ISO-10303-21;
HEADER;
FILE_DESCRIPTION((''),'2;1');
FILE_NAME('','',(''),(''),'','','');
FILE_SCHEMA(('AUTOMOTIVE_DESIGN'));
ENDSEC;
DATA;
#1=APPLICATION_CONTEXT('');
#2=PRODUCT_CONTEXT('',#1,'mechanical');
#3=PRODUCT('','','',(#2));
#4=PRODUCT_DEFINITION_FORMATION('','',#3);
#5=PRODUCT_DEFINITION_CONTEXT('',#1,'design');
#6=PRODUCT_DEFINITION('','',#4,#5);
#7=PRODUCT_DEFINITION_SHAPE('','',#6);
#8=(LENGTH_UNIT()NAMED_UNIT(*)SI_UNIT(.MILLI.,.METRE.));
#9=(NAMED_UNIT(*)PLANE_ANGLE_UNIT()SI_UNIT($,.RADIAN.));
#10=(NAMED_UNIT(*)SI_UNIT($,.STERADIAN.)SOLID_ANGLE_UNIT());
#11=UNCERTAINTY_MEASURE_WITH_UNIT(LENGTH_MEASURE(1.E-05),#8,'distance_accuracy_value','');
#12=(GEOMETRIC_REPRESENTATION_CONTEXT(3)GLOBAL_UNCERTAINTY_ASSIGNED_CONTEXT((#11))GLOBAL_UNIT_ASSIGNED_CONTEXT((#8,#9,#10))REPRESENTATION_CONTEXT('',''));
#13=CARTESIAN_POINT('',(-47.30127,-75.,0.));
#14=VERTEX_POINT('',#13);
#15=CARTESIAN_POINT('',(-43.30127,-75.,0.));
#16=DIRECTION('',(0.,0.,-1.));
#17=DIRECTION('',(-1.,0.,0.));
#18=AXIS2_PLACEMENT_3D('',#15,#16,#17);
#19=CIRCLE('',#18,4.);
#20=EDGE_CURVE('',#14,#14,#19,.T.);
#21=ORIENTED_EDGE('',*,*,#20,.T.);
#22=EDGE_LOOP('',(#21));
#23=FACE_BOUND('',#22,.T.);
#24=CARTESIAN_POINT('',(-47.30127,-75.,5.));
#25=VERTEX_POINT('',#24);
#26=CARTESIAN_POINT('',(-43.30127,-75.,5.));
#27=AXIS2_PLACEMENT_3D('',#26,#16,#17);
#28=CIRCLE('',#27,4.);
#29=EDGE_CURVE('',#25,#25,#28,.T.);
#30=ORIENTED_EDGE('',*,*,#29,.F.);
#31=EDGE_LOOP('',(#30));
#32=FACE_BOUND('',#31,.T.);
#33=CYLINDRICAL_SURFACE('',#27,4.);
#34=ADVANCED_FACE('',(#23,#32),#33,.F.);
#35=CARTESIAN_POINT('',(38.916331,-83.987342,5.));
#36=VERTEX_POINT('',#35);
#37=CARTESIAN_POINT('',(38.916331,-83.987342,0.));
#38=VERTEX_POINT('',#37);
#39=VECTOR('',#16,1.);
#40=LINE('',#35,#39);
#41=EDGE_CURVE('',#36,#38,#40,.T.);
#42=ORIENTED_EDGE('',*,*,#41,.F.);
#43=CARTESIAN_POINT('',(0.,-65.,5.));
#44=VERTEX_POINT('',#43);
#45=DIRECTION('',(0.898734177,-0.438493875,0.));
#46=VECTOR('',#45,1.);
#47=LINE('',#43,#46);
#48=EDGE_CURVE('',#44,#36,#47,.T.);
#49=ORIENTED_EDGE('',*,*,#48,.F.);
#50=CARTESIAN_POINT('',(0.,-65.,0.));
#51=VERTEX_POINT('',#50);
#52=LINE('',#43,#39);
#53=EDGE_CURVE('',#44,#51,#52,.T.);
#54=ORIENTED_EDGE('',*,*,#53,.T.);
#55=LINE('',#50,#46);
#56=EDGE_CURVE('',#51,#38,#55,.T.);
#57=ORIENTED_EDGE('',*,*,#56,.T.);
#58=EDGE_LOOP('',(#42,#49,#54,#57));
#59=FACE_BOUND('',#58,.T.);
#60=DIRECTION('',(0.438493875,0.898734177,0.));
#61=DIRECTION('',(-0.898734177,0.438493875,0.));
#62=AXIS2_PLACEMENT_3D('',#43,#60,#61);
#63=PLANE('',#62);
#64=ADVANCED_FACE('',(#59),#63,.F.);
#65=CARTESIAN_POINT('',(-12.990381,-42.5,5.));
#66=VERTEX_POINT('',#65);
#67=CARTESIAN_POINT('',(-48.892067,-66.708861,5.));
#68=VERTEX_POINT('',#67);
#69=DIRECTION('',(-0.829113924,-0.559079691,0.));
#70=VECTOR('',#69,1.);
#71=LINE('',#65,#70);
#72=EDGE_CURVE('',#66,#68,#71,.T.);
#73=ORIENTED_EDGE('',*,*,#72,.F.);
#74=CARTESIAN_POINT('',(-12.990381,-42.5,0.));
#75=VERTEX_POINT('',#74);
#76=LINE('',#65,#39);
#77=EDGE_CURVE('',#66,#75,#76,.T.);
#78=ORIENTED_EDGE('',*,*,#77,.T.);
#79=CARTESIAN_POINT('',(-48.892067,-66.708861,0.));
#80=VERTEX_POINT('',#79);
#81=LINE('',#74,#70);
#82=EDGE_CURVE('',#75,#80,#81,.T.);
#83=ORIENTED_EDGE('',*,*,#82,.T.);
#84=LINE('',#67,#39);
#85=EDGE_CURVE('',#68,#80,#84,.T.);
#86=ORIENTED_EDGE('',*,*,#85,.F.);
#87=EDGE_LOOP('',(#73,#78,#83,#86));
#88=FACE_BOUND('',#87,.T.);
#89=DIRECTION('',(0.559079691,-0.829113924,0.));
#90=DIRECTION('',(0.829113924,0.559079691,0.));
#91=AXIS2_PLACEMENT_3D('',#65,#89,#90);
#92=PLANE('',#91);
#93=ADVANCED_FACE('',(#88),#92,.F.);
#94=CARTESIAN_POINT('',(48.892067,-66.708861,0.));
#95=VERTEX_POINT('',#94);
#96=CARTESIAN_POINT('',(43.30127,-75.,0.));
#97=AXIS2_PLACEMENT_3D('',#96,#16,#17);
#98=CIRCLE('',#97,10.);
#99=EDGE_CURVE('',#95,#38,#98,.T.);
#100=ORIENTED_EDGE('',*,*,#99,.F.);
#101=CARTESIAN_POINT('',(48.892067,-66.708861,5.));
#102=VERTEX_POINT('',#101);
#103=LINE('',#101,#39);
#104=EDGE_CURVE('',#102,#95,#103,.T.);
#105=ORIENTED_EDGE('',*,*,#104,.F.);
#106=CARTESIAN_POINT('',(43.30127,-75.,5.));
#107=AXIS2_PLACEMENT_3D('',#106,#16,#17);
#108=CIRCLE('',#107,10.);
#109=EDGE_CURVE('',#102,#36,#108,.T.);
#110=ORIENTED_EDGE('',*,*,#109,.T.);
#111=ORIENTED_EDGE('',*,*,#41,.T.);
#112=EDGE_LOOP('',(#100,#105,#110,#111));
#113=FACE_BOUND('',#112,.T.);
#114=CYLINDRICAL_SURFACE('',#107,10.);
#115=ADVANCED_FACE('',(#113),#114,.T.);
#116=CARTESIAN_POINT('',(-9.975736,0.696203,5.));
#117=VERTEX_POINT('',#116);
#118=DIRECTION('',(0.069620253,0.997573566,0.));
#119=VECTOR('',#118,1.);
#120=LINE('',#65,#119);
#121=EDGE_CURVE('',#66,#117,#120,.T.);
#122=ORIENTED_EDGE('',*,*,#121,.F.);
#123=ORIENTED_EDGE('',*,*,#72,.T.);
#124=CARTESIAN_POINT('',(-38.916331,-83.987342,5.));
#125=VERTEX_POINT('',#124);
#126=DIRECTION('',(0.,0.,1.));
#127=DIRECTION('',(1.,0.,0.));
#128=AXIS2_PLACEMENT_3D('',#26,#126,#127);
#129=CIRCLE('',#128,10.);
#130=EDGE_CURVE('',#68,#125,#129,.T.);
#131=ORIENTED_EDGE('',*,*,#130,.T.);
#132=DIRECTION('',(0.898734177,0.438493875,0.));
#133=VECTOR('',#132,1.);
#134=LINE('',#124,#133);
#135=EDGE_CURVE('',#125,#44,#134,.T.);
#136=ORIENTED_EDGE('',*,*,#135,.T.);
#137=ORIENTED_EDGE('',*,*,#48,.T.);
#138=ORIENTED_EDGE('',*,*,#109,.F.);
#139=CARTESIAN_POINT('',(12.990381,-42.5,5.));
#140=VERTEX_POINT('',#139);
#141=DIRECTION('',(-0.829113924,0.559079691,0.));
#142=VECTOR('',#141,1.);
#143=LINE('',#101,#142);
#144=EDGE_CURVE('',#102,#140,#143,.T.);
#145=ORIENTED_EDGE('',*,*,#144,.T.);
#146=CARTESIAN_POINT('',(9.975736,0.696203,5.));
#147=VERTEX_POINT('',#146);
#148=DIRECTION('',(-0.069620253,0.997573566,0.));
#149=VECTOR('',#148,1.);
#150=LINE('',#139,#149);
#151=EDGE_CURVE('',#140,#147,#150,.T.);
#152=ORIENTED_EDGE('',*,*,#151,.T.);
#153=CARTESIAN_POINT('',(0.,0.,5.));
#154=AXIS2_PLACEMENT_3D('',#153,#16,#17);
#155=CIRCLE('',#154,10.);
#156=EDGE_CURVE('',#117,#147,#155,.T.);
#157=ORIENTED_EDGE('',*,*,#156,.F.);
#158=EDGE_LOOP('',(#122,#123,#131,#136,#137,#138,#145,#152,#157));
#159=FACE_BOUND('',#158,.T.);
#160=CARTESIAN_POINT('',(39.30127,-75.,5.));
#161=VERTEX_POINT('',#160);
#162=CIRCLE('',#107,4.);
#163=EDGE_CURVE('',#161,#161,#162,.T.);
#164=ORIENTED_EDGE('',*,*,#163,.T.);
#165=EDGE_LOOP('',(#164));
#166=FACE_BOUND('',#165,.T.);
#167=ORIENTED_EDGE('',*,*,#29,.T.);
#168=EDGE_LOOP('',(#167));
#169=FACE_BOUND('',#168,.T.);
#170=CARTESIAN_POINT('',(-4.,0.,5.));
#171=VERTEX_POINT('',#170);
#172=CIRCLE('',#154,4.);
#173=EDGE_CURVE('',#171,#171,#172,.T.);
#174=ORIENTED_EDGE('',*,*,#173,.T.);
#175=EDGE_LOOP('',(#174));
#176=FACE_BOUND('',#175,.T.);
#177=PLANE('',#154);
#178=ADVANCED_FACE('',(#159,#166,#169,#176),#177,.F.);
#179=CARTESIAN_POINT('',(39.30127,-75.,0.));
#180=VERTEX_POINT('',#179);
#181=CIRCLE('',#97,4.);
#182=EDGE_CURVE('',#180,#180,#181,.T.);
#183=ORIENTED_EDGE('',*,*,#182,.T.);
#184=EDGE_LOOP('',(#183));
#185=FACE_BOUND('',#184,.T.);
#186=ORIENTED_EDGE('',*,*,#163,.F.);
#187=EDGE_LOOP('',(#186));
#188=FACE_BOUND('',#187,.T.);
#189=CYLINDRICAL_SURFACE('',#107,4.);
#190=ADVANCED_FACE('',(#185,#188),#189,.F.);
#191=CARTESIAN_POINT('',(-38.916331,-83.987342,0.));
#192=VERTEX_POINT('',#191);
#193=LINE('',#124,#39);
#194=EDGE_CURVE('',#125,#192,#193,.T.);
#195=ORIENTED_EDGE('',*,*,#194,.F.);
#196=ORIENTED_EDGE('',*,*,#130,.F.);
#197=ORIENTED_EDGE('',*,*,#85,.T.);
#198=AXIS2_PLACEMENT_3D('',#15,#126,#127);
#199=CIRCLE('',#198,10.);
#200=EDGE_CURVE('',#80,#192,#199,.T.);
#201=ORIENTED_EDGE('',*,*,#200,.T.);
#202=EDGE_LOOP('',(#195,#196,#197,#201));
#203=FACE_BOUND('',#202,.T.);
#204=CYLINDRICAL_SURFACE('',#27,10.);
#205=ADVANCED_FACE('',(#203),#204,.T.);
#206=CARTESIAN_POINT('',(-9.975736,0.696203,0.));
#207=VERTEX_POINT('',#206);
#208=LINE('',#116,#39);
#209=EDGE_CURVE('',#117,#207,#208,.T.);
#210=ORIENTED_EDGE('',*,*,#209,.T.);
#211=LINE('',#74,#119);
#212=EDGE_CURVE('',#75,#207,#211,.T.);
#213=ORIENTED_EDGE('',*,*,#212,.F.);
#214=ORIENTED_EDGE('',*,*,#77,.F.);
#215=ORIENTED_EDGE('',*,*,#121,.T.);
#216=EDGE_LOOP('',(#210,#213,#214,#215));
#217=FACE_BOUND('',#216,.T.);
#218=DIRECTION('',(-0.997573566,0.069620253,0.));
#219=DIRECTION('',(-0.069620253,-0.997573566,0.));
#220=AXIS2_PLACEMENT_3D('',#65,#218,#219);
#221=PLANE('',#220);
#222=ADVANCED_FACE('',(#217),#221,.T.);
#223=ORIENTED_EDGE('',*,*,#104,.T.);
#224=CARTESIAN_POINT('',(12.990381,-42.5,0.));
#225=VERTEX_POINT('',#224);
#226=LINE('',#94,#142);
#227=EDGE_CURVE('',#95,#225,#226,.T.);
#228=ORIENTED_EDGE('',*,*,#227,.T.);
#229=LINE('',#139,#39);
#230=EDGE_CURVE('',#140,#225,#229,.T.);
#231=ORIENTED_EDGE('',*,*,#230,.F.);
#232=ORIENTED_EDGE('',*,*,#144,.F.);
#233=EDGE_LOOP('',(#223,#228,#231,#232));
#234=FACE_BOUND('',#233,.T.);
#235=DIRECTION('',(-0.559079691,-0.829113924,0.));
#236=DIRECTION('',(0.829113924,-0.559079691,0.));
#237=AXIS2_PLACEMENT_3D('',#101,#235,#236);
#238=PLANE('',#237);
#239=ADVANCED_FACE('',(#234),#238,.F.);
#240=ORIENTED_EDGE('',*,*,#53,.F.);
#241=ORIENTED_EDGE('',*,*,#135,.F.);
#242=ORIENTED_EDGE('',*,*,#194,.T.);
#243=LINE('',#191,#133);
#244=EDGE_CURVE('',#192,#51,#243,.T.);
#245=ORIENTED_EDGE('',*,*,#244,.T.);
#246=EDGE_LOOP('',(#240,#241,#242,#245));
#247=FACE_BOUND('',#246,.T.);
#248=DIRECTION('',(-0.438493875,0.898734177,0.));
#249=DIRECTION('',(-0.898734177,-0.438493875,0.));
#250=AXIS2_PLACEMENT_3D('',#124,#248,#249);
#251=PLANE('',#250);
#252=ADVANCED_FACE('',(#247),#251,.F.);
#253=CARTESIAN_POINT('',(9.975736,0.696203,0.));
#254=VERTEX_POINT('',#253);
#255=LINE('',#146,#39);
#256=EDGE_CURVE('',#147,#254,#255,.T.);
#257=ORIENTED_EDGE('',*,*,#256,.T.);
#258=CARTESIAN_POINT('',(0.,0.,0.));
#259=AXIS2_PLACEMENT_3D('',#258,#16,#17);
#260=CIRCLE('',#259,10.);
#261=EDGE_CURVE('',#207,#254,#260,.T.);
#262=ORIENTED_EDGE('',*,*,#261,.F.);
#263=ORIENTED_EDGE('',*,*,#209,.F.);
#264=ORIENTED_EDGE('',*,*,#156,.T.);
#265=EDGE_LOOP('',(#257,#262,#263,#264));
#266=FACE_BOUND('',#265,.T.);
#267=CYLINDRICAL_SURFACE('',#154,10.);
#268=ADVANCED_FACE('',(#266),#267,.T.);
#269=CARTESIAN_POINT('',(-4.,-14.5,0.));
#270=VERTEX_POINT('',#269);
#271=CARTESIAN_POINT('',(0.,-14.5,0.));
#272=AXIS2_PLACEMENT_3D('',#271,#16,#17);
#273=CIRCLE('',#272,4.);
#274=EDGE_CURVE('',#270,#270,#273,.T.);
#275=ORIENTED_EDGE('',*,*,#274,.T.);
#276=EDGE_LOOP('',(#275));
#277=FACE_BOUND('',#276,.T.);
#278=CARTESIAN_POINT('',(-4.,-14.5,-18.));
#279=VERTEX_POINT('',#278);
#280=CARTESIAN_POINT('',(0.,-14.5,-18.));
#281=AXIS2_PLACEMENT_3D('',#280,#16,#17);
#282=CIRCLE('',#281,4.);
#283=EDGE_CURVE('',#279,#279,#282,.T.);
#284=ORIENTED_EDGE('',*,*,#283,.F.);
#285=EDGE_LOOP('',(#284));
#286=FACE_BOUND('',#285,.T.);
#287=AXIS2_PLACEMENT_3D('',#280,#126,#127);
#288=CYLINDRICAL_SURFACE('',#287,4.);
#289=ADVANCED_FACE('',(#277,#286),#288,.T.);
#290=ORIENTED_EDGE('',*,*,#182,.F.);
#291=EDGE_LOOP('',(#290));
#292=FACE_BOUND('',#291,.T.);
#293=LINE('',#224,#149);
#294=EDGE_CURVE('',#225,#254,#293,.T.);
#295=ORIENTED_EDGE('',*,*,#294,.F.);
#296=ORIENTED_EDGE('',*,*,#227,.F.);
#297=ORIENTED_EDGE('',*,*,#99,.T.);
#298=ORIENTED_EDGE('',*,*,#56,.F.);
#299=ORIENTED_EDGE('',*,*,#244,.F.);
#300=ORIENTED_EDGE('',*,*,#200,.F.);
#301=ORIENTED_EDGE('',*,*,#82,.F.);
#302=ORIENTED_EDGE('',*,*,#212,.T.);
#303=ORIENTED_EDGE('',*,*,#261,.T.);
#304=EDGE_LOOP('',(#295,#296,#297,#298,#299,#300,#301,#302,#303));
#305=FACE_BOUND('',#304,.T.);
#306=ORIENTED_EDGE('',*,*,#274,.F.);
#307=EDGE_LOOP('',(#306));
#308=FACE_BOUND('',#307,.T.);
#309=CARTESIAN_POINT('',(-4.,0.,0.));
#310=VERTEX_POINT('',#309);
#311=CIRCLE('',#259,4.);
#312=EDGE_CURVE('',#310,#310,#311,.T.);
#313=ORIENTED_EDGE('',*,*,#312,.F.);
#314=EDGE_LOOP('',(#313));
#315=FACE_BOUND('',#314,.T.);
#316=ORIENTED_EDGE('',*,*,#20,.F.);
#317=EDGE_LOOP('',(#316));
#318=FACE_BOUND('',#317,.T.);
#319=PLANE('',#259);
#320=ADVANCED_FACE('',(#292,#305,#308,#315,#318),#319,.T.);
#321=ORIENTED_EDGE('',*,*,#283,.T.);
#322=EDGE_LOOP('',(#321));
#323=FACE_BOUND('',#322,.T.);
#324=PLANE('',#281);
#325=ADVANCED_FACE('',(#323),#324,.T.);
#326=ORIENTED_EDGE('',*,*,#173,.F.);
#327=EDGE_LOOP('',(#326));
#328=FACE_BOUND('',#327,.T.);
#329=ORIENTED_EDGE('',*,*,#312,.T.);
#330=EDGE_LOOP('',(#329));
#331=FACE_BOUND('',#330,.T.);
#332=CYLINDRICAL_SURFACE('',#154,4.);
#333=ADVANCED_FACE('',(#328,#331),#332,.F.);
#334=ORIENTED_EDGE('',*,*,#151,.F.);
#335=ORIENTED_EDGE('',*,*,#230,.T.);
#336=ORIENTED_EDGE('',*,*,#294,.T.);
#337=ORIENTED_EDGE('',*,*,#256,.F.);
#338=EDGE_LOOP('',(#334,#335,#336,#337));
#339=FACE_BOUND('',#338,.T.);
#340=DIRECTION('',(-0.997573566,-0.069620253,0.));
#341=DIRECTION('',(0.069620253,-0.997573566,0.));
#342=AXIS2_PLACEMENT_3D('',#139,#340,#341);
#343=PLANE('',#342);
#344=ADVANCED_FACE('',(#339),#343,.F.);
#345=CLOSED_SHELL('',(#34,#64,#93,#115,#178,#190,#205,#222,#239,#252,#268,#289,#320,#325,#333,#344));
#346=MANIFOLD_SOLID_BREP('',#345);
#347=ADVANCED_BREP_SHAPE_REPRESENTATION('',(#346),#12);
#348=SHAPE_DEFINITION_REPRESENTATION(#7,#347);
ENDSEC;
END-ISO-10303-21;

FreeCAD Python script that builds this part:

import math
import FreeCAD as App
import Part
import Sketcher

V = App.Vector
Q = App.Units.Quantity

doc = App.newDocument("Part")
params = doc.addObject("Spreadsheet::Sheet", "Params")
for row, (alias, value) in enumerate([
    ("sketch1_radius", "10 mm"),
    ("pad1_length", "5 mm"),
    ("sketch2_diameter", "8 mm"),
    ("pocket1_length", "5 mm"),
    ("sketch3_diameter", "8 mm"),
    ("pad2_length", "18 mm"),
], start=1):
    params.set(f"A{row}", alias)
    params.set(f"B{row}", "=" + value)
    params.setAlias(f"B{row}", alias)

body = doc.addObject("PartDesign::Body", "Body")

# Sketch on XY plane
sketch1 = body.newObject("Sketcher::SketchObject", "Sketch")
sketch1.AttachmentSupport = (doc.getObject("XY_Plane"), [""])
sketch1.MapMode = "FlatFace"
sketch1.addGeometry([
    Part.LineSegment(V(-39, -84, 0), V(0, -65, 0)),  # 0
    Part.LineSegment(V(0, -65, 0), V(39, -84, 0)),  # 1
    Part.ArcOfCircle(Part.Circle(V(43, -75, 0), V(0, 0, 1), 10), math.radians(-116), math.radians(56)),  # 2
    Part.LineSegment(V(49, -67, 0), V(13, -42, 0)),  # 3
    Part.LineSegment(V(13, -42, 0), V(10, 1, 0)),  # 4
    Part.ArcOfCircle(Part.Circle(V(0, 0, 0), V(0, 0, 1), 10), math.radians(4), math.radians(176)),  # 5
    Part.LineSegment(V(-10, 1, 0), V(-13, -42, 0)),  # 6
    Part.LineSegment(V(-13, -42, 0), V(-49, -67, 0)),  # 7
    Part.ArcOfCircle(Part.Circle(V(-43, -75, 0), V(0, 0, 1), 10), math.radians(124), math.radians(296)),  # 8
], False)
sketch1.addConstraint([
    Sketcher.Constraint("Coincident", 0, 2, 1, 1),
    Sketcher.Constraint("Tangent", 1, 2, 2, 1),
    Sketcher.Constraint("Tangent", 2, 2, 3, 1),
    Sketcher.Constraint("Coincident", 3, 2, 4, 1),
    Sketcher.Constraint("Tangent", 4, 2, 5, 1),
    Sketcher.Constraint("Tangent", 5, 2, 6, 1),
    Sketcher.Constraint("Coincident", 6, 2, 7, 1),
    Sketcher.Constraint("Tangent", 7, 2, 8, 1),
    Sketcher.Constraint("Tangent", 8, 2, 0, 1),
    Sketcher.Constraint("Coincident", 5, 3, -1, 1),
    Sketcher.Constraint("Equal", 2, 5),
    Sketcher.Constraint("Equal", 5, 8),
    Sketcher.Constraint("Symmetric", 2, 3, 8, 3, -2),
    Sketcher.Constraint("Symmetric", 3, 2, 6, 2, -2),
    Sketcher.Constraint("PointOnObject", 0, 2, -2),
    Sketcher.Constraint("Equal", 1, 3),
    Sketcher.Constraint("Equal", 3, 4),
    Sketcher.Constraint("Radius", 2, Q("10 mm")),
    Sketcher.Constraint("DistanceY", 2, 3, -1, 1, Q("75 mm")),
    Sketcher.Constraint("DistanceY", 0, 2, -1, 1, Q("65 mm")),
    Sketcher.Constraint("DistanceY", 3, 2, -1, 1, Q("42.5 mm")),
])
sketch1.setExpression("Constraints[17]", "Params.sketch1_radius")
pad1 = body.newObject("PartDesign::Pad", "Pad")
pad1.Profile = sketch1
pad1.setExpression("Length", "Params.pad1_length")

# Sketch on XY plane
sketch2 = body.newObject("Sketcher::SketchObject", "Sketch001")
sketch2.AttachmentSupport = (doc.getObject("XY_Plane"), [""])
sketch2.MapMode = "FlatFace"
sketch2.addGeometry([
    Part.Circle(V(0, 30, 0), V(0, 0, 1), 4),
    Part.Circle(V(0, 0, 0), V(0, 0, 1), 4),
    Part.Circle(V(43.3, -75, 0), V(0, 0, 1), 4),
    Part.Circle(V(-43.3, -75, 0), V(0, 0, 1), 4),
], False)
sketch2.addConstraint([
    Sketcher.Constraint("Coincident", 1, 3, -1, 1),
    Sketcher.Constraint("Equal", 0, 1),
    Sketcher.Constraint("Equal", 1, 2),
    Sketcher.Constraint("Equal", 2, 3),
    Sketcher.Constraint("Symmetric", 2, 3, 3, 3, -2),
    Sketcher.Constraint("PointOnObject", 0, 3, -2),
    Sketcher.Constraint("Diameter", 0, Q("8 mm")),
    Sketcher.Constraint("DistanceY", -1, 1, 0, 3, Q("30 mm")),
    Sketcher.Constraint("DistanceY", 2, 3, -1, 1, Q("75 mm")),
    Sketcher.Constraint("DistanceX", -1, 1, 2, 3, Q("43.30127 mm")),
])
sketch2.setExpression("Constraints[6]", "Params.sketch2_diameter")
pocket1 = body.newObject("PartDesign::Pocket", "Pocket")
pocket1.Profile = sketch2
pocket1.setExpression("Length", "Params.pocket1_length")
pocket1.Reversed = True

# Sketch on XY plane
sketch3 = body.newObject("Sketcher::SketchObject", "Sketch002")
sketch3.AttachmentSupport = (doc.getObject("XY_Plane"), [""])
sketch3.MapMode = "FlatFace"
sketch3.addGeometry(Part.Circle(V(0, -14.5, 0), V(0, 0, 1), 4), False)
sketch3.addConstraint([
    Sketcher.Constraint("PointOnObject", 0, 3, -2),
    Sketcher.Constraint("Diameter", 0, Q("8 mm")),
    Sketcher.Constraint("DistanceY", 0, 3, -1, 1, Q("14.5 mm")),
])
sketch3.setExpression("Constraints[1]", "Params.sketch3_diameter")
pad2 = body.newObject("PartDesign::Pad", "Pad001")
pad2.Profile = sketch3
pad2.setExpression("Length", "Params.pad2_length")
pad2.Reversed = True

doc.recompute()
